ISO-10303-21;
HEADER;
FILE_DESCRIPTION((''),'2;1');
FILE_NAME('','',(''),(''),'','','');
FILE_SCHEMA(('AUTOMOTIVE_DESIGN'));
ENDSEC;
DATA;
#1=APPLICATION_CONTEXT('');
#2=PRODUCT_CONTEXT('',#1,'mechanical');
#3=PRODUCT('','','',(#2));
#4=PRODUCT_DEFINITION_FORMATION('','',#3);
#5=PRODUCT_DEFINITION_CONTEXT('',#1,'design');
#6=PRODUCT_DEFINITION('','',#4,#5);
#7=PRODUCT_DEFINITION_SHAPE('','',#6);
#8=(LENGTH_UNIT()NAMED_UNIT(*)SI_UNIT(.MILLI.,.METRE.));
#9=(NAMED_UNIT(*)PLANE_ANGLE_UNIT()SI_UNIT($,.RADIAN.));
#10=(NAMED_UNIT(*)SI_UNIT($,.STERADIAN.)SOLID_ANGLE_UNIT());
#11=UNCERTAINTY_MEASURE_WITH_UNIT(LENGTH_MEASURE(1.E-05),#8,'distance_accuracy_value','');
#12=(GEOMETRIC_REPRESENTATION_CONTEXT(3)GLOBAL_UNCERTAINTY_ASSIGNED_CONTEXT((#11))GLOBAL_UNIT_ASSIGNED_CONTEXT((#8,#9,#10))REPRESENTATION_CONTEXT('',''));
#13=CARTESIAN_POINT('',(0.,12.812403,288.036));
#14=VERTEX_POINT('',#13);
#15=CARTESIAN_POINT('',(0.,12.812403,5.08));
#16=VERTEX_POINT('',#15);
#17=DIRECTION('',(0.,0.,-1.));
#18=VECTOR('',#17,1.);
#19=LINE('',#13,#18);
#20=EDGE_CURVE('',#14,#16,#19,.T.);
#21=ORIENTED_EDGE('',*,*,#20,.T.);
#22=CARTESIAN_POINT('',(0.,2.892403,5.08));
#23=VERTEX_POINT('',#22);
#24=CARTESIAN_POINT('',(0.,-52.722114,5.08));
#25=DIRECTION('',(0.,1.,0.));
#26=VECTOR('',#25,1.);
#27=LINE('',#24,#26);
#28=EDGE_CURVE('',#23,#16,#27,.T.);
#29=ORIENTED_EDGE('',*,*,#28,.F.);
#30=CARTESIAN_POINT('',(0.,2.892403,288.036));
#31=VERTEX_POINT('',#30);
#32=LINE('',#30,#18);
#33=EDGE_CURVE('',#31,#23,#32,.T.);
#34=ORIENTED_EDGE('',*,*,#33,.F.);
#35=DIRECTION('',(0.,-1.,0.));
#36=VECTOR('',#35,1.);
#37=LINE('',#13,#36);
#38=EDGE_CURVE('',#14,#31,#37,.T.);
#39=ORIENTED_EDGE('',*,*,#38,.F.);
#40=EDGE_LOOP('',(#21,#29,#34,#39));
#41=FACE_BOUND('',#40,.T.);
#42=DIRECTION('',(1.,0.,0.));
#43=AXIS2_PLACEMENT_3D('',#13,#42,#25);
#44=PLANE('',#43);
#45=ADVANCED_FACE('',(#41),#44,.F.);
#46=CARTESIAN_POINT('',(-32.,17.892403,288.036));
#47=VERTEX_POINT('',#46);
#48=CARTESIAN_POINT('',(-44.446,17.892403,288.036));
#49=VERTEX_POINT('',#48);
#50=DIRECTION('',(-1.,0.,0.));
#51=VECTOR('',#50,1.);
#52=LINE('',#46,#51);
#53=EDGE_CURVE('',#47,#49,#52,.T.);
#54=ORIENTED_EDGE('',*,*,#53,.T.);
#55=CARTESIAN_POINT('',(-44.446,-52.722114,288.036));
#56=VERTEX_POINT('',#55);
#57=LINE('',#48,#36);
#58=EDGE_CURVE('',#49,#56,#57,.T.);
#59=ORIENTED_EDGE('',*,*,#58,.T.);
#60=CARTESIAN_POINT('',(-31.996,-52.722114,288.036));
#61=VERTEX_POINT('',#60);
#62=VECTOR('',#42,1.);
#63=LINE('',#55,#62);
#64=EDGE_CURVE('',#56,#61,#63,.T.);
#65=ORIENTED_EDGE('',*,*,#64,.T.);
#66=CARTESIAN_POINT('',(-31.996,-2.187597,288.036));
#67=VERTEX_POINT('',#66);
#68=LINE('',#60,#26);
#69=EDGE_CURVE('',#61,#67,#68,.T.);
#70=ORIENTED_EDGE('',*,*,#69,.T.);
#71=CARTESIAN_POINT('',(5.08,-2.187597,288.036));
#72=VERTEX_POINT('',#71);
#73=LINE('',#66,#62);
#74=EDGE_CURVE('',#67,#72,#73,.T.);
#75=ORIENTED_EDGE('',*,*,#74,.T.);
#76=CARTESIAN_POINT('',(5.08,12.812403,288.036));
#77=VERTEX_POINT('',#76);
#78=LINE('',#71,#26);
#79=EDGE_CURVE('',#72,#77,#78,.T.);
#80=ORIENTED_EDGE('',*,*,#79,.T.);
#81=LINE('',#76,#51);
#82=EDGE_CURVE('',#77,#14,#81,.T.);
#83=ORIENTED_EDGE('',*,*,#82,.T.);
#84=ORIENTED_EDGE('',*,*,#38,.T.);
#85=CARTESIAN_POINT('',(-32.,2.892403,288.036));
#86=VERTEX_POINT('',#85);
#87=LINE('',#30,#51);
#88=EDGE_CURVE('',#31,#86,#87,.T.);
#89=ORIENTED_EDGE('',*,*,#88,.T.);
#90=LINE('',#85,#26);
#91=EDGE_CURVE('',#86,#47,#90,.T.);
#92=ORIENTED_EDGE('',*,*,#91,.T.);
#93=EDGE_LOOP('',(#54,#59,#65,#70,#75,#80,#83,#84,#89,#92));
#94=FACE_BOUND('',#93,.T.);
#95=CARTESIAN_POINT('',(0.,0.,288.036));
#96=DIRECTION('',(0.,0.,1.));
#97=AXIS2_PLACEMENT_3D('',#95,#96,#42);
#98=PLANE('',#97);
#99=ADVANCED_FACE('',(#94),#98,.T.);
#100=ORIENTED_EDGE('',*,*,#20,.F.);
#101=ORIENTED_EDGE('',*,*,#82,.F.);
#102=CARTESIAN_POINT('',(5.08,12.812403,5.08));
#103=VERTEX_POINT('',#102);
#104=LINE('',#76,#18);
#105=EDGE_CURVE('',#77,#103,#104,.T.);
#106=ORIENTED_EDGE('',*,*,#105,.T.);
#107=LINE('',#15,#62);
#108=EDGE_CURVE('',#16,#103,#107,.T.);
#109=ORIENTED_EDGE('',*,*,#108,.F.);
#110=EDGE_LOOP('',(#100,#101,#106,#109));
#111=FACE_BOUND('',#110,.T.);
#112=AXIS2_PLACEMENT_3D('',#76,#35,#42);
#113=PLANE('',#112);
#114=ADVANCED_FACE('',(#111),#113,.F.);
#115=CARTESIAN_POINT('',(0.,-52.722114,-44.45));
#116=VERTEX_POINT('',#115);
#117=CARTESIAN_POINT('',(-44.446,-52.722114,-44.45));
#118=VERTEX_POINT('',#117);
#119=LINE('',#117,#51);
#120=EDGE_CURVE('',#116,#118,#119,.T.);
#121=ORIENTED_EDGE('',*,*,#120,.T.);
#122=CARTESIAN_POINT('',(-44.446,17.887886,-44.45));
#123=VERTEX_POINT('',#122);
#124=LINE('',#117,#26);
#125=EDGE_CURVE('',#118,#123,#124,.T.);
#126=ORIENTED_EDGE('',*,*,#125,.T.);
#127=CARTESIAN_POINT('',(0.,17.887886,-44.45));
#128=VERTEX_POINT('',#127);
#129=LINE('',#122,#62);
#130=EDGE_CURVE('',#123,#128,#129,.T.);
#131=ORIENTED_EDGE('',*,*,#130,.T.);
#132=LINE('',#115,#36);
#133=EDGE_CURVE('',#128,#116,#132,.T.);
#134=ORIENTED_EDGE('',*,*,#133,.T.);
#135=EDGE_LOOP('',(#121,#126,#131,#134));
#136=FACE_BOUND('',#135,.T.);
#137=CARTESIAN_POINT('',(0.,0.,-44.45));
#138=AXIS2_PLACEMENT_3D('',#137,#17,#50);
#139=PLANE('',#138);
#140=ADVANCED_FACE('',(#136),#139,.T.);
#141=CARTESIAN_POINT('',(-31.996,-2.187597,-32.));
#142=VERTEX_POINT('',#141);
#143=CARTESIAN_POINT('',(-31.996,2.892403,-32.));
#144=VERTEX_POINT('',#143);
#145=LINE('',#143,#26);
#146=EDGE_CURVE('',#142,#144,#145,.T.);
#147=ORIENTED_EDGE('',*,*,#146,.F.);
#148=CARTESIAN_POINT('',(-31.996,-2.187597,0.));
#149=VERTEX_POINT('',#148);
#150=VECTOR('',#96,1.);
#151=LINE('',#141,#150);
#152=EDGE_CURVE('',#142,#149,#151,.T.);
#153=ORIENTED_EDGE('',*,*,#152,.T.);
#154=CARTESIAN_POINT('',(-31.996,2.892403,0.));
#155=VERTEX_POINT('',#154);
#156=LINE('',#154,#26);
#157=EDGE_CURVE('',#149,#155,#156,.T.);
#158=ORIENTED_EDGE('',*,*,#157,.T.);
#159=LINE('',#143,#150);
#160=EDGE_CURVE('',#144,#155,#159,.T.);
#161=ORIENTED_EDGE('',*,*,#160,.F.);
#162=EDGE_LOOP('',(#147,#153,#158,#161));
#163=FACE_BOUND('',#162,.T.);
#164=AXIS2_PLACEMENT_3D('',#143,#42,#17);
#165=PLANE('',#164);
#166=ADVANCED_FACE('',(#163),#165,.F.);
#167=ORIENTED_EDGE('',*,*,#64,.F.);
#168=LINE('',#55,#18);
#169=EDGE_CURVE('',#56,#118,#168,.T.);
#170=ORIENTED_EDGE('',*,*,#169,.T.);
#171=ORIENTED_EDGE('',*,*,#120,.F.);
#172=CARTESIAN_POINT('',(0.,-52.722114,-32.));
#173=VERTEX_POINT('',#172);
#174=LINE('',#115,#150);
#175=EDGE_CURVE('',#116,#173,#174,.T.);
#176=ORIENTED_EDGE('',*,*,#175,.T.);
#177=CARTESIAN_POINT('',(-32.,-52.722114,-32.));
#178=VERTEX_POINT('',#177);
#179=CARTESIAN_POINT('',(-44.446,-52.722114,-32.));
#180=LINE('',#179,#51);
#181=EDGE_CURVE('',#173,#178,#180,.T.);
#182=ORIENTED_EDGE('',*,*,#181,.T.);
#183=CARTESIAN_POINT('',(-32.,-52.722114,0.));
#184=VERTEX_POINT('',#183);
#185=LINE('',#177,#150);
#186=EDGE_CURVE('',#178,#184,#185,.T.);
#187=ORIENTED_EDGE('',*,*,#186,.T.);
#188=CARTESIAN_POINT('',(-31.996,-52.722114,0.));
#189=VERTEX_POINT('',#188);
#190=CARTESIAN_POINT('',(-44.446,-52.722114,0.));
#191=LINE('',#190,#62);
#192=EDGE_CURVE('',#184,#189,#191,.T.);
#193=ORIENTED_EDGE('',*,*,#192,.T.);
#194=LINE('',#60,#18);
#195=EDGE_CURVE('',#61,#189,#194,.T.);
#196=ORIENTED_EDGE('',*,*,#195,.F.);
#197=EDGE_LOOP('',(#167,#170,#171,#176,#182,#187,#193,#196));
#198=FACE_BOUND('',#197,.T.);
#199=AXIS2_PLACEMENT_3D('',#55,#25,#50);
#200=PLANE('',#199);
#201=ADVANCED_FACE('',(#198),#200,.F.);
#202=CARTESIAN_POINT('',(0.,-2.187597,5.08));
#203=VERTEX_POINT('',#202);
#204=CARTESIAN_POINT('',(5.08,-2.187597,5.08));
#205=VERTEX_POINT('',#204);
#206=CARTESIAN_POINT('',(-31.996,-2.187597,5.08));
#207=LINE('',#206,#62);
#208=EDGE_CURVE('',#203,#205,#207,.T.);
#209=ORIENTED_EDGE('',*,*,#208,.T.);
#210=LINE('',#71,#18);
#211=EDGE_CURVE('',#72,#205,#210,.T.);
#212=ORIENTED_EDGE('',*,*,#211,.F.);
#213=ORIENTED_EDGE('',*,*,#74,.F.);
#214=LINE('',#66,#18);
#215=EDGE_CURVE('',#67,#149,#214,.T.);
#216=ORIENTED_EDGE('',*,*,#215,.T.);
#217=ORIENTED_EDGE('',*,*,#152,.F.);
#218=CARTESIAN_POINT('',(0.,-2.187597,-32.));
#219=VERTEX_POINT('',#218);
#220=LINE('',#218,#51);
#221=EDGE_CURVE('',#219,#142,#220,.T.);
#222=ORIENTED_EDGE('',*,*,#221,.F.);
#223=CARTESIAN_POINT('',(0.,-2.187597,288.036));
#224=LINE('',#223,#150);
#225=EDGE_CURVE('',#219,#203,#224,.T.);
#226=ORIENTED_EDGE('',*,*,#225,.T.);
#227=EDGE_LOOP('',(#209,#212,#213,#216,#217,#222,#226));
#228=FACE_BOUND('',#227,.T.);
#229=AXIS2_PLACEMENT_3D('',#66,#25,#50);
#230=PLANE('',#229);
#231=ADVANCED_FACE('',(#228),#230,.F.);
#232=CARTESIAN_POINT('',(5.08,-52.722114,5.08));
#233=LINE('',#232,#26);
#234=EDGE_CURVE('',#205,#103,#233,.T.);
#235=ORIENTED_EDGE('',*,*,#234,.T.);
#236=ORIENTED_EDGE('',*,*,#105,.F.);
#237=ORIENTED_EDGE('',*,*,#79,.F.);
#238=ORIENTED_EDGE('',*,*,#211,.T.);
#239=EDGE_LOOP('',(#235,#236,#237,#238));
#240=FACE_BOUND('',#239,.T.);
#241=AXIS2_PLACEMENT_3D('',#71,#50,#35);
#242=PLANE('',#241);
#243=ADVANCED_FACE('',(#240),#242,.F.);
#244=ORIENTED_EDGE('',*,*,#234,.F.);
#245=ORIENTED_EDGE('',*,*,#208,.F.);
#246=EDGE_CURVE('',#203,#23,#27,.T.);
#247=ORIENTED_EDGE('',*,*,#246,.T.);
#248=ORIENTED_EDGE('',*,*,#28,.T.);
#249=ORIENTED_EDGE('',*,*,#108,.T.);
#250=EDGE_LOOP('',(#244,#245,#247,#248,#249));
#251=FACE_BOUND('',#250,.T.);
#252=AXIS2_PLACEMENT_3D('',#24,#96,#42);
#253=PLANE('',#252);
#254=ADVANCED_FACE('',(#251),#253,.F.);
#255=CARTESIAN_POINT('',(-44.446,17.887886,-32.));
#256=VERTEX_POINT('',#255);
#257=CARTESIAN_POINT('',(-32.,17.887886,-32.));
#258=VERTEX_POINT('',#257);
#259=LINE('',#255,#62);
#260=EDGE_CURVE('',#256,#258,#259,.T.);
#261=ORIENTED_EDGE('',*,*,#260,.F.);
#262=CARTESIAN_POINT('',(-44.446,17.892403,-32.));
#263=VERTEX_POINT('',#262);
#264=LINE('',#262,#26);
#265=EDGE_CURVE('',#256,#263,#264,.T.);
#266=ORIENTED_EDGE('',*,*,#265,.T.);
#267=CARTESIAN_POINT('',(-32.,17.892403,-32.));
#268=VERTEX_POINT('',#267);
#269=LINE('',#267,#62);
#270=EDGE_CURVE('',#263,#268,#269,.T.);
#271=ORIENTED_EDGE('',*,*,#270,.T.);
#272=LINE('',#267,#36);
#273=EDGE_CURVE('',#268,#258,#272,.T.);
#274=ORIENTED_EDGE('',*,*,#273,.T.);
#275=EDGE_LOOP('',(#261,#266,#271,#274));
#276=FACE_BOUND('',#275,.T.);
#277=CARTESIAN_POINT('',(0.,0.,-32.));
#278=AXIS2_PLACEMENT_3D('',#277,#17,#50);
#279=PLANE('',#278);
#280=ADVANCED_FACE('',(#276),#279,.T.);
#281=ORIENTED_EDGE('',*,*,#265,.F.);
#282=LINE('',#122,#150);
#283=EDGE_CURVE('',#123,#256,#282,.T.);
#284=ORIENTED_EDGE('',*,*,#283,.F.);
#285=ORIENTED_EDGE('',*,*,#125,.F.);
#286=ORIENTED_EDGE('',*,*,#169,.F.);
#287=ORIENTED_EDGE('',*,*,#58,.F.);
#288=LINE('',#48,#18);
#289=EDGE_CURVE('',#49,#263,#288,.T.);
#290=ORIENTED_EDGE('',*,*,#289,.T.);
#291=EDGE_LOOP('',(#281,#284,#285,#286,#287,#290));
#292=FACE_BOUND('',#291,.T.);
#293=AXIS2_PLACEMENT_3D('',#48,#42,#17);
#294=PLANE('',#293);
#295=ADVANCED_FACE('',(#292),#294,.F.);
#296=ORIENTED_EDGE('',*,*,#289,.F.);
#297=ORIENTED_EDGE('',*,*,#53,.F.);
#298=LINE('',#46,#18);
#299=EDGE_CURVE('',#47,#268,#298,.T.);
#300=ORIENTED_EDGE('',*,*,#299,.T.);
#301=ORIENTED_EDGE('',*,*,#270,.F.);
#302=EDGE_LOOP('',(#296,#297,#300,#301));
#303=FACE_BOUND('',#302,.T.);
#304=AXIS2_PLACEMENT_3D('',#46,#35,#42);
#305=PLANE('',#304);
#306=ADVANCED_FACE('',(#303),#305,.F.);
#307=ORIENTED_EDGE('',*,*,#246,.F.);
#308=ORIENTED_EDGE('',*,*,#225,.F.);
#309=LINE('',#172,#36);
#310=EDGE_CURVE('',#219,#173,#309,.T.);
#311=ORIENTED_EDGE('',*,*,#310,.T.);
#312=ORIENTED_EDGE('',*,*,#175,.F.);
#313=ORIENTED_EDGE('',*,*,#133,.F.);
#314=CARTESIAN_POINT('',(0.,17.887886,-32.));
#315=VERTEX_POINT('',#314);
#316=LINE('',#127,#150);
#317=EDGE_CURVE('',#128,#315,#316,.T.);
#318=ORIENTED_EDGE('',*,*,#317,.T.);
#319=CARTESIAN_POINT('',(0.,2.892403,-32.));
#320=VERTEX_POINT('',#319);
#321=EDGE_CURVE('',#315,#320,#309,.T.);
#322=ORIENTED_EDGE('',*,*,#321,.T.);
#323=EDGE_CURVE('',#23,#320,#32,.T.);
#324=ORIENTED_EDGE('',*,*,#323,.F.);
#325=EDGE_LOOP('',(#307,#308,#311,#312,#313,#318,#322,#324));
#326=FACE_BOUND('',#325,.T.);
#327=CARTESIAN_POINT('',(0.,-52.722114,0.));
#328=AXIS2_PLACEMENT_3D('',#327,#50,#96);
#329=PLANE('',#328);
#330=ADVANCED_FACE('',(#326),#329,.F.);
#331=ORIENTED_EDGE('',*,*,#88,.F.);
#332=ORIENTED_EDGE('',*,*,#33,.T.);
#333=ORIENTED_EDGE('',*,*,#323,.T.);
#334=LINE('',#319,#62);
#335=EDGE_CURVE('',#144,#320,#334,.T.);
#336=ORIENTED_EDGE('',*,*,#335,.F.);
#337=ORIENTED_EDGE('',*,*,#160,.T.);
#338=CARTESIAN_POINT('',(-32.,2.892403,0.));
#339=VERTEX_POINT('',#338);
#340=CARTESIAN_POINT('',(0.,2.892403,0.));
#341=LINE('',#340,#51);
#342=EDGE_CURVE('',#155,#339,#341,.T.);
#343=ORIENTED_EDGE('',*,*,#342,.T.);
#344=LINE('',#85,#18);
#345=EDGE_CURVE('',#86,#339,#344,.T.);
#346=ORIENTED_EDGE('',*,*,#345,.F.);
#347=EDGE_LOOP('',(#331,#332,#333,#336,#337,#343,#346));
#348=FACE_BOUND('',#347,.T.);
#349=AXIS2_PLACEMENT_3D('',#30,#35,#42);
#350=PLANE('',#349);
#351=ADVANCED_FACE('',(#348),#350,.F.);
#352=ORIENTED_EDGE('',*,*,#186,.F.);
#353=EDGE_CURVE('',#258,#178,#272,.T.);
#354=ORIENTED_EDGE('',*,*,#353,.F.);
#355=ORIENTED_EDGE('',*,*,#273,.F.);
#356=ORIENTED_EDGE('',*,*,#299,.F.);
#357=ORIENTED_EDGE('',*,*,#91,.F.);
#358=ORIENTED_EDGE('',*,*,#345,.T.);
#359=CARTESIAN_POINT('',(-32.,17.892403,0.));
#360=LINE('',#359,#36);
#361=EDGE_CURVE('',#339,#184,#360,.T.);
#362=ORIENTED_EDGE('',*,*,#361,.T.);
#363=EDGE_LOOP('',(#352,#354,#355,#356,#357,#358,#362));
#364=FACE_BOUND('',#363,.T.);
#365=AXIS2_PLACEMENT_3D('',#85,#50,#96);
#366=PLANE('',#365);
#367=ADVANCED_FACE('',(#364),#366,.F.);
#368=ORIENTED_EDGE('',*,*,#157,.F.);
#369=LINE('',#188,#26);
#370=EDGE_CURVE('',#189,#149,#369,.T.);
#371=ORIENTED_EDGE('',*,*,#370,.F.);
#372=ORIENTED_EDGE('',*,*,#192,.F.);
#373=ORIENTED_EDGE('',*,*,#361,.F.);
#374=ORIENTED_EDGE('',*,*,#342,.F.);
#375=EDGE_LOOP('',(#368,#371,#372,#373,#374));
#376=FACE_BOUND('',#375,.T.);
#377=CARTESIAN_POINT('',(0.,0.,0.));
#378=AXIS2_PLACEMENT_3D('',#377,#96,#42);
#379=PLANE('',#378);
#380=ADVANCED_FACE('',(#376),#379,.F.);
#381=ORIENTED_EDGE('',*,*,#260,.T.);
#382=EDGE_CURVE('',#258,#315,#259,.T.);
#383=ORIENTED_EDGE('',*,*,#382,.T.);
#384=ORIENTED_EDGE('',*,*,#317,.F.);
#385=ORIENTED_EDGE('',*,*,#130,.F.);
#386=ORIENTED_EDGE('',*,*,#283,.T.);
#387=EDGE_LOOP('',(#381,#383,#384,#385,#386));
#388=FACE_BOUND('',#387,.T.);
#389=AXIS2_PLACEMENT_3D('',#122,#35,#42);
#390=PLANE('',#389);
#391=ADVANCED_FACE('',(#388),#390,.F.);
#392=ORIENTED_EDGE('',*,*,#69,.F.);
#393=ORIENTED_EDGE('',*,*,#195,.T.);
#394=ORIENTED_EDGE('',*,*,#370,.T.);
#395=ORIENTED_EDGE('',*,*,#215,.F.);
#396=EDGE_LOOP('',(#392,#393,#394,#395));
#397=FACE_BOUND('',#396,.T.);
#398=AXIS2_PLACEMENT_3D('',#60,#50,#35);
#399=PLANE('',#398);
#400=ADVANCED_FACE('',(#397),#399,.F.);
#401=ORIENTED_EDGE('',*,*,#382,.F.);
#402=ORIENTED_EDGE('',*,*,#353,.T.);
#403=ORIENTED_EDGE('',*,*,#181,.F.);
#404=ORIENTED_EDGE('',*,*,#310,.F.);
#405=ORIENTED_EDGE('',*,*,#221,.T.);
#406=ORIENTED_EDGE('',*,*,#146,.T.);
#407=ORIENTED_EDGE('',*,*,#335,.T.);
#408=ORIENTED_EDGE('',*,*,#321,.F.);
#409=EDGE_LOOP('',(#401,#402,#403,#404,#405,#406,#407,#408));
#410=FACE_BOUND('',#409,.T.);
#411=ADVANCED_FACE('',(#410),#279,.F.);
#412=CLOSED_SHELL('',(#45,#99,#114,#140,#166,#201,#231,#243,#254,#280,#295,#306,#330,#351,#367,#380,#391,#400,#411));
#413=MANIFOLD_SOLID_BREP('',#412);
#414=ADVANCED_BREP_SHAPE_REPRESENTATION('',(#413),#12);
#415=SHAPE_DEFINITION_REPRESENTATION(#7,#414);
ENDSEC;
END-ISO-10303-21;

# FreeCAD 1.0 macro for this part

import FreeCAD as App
import Part
import Sketcher

V = App.Vector
Q = App.Units.Quantity


def add_polygon(sketch, points):
    """Adds a closed chain of lines whose ends are joined by coincident constraints."""
    first, n = sketch.GeometryCount, len(points)
    for a, b in zip(points, points[1:] + points[:1]):
        sketch.addGeometry(Part.LineSegment(App.Vector(*a, 0), App.Vector(*b, 0)), False)
    for i in range(n):
        sketch.addConstraint(Sketcher.Constraint("Coincident", first + i, 2, first + (i + 1) % n, 1))

doc = App.newDocument("Part")
body = doc.addObject("PartDesign::Body", "Body")

# Sketch on XY plane
sketch1 = body.newObject("Sketcher::SketchObject", "Sketch")
sketch1.AttachmentSupport = (doc.getObject("XY_Plane"), [""])
sketch1.MapMode = "FlatFace"
add_polygon(sketch1, [(-44, 18), (-44, -53), (-32, -53), (-32, -2), (5, -2), (5, 13), (0, 13), (0, 3), (-32, 3), (-32, 18)])  # lines 0-9
sketch1.addConstraint([
    Sketcher.Constraint("Vertical", 0),
    Sketcher.Constraint("Horizontal", 1),
    Sketcher.Constraint("Vertical", 2),
    Sketcher.Constraint("Horizontal", 3),
    Sketcher.Constraint("Vertical", 4),
    Sketcher.Constraint("Horizontal", 5),
    Sketcher.Constraint("Vertical", 6),
    Sketcher.Constraint("Horizontal", 7),
    Sketcher.Constraint("Vertical", 8),
    Sketcher.Constraint("Horizontal", 9),
    Sketcher.Constraint("PointOnObject", 5, 2, -2),
    Sketcher.Constraint("Equal", 4, 8),
    Sketcher.Constraint("DistanceX", 5, 2, 5, 1, Q("0.2 in")),
    Sketcher.Constraint("DistanceX", 9, 2, 9, 1, Q("0.49 in")),
    Sketcher.Constraint("DistanceY", 3, 2, 6, 2, Q("0.2 in")),
    Sketcher.Constraint("DistanceX", 1, 1, 1, 2, 12.45),
    Sketcher.Constraint("DistanceX", 3, 1, 3, 2, 37.076),
    Sketcher.Constraint("DistanceY", 4, 1, 4, 2, 15.0),
    Sketcher.Constraint("DistanceY", 0, 2, 0, 1, 70.614517),
    Sketcher.Constraint("DistanceY", 0, 2, -1, 1, 52.722114),
])
pad1 = body.newObject("PartDesign::Pad", "Pad")
pad1.Profile = sketch1
pad1.Length = Q("11.34 in")

# Sketch on XZ plane
sketch2 = body.newObject("Sketcher::SketchObject", "Sketch001")
sketch2.AttachmentSupport = (doc.getObject("XZ_Plane"), [""])
sketch2.MapMode = "FlatFace"
sketch2.AttachmentOffset = App.Placement(V(0, 0, -12.812403), App.Rotation())
add_polygon(sketch2, [(0, 0), (0, 5), (5, 5), (5, 0)])  # lines 0-3
sketch2.addConstraint([
    Sketcher.Constraint("Vertical", 0),
    Sketcher.Constraint("Horizontal", 1),
    Sketcher.Constraint("Vertical", 2),
    Sketcher.Constraint("Horizontal", 3),
    Sketcher.Constraint("Coincident", 3, 2, -1, 1),
    Sketcher.Constraint("Equal", 3, 0),
    Sketcher.Constraint("DistanceX", 1, 1, 1, 2, Q("0.2 in")),
])
pocket1 = body.newObject("PartDesign::Pocket", "Pocket")
pocket1.Profile = sketch2
pocket1.Type = "ThroughAll"
pocket1.Reversed = True

# Sketch on XY plane
sketch3 = body.newObject("Sketcher::SketchObject", "Sketch002")
sketch3.AttachmentSupport = (doc.getObject("XY_Plane"), [""])
sketch3.MapMode = "FlatFace"
add_polygon(sketch3, [(-32, 18), (-32, -53), (-44, -53), (-44, 18)])  # lines 0-3
add_polygon(sketch3, [(0, 3), (0, -2), (-32, -2), (-32, 3)])  # lines 4-7
sketch3.addConstraint([
    Sketcher.Constraint("Vertical", 0),
    Sketcher.Constraint("Horizontal", 1),
    Sketcher.Constraint("Vertical", 2),
    Sketcher.Constraint("Horizontal", 3),
    Sketcher.Constraint("Vertical", 4),
    Sketcher.Constraint("Horizontal", 5),
    Sketcher.Constraint("Vertical", 6),
    Sketcher.Constraint("Horizontal", 7),
    Sketcher.Constraint("PointOnObject", 4, 2, -2),
    Sketcher.Constraint("DistanceY", 4, 2, 4, 1, Q("0.2 in")),
    Sketcher.Constraint("DistanceX", 1, 2, 1, 1, Q("0.49 in")),
    Sketcher.Constraint("DistanceX", 5, 2, 5, 1, 31.996),
    Sketcher.Constraint("DistanceX", 0, 2, -1, 1, 32.0),
    Sketcher.Constraint("DistanceY", 4, 2, 3, 2, 20.08),
    Sketcher.Constraint("DistanceY", 0, 2, 0, 1, 70.614517),
    Sketcher.Constraint("DistanceY", 0, 2, -1, 1, 52.722114),
])
pad2 = body.newObject("PartDesign::Pad", "Pad001")
pad2.Profile = sketch3
pad2.Length = 32
pad2.Reversed = True

# Sketch on XY plane
sketch4 = body.newObject("Sketcher::SketchObject", "Sketch003")
sketch4.AttachmentSupport = (doc.getObject("XY_Plane"), [""])
sketch4.MapMode = "FlatFace"
sketch4.AttachmentOffset = App.Placement(V(0, 0, -32), App.Rotation())
add_polygon(sketch4, [(0, 18), (0, -53), (-44, -53), (-44, 18)])  # lines 0-3
sketch4.addConstraint([
    Sketcher.Constraint("Vertical", 0),
    Sketcher.Constraint("Horizontal", 1),
    Sketcher.Constraint("Vertical", 2),
    Sketcher.Constraint("Horizontal", 3),
    Sketcher.Constraint("PointOnObject", 0, 2, -2),
    Sketcher.Constraint("DistanceX", 1, 2, 1, 1, 44.446),
    Sketcher.Constraint("DistanceY", 0, 2, 0, 1, 70.61),
    Sketcher.Constraint("DistanceY", 0, 2, -1, 1, 52.722114),
])
pad3 = body.newObject("PartDesign::Pad", "Pad002")
pad3.Profile = sketch4
pad3.Length = 12.45
pad3.Reversed = True

doc.recompute()
